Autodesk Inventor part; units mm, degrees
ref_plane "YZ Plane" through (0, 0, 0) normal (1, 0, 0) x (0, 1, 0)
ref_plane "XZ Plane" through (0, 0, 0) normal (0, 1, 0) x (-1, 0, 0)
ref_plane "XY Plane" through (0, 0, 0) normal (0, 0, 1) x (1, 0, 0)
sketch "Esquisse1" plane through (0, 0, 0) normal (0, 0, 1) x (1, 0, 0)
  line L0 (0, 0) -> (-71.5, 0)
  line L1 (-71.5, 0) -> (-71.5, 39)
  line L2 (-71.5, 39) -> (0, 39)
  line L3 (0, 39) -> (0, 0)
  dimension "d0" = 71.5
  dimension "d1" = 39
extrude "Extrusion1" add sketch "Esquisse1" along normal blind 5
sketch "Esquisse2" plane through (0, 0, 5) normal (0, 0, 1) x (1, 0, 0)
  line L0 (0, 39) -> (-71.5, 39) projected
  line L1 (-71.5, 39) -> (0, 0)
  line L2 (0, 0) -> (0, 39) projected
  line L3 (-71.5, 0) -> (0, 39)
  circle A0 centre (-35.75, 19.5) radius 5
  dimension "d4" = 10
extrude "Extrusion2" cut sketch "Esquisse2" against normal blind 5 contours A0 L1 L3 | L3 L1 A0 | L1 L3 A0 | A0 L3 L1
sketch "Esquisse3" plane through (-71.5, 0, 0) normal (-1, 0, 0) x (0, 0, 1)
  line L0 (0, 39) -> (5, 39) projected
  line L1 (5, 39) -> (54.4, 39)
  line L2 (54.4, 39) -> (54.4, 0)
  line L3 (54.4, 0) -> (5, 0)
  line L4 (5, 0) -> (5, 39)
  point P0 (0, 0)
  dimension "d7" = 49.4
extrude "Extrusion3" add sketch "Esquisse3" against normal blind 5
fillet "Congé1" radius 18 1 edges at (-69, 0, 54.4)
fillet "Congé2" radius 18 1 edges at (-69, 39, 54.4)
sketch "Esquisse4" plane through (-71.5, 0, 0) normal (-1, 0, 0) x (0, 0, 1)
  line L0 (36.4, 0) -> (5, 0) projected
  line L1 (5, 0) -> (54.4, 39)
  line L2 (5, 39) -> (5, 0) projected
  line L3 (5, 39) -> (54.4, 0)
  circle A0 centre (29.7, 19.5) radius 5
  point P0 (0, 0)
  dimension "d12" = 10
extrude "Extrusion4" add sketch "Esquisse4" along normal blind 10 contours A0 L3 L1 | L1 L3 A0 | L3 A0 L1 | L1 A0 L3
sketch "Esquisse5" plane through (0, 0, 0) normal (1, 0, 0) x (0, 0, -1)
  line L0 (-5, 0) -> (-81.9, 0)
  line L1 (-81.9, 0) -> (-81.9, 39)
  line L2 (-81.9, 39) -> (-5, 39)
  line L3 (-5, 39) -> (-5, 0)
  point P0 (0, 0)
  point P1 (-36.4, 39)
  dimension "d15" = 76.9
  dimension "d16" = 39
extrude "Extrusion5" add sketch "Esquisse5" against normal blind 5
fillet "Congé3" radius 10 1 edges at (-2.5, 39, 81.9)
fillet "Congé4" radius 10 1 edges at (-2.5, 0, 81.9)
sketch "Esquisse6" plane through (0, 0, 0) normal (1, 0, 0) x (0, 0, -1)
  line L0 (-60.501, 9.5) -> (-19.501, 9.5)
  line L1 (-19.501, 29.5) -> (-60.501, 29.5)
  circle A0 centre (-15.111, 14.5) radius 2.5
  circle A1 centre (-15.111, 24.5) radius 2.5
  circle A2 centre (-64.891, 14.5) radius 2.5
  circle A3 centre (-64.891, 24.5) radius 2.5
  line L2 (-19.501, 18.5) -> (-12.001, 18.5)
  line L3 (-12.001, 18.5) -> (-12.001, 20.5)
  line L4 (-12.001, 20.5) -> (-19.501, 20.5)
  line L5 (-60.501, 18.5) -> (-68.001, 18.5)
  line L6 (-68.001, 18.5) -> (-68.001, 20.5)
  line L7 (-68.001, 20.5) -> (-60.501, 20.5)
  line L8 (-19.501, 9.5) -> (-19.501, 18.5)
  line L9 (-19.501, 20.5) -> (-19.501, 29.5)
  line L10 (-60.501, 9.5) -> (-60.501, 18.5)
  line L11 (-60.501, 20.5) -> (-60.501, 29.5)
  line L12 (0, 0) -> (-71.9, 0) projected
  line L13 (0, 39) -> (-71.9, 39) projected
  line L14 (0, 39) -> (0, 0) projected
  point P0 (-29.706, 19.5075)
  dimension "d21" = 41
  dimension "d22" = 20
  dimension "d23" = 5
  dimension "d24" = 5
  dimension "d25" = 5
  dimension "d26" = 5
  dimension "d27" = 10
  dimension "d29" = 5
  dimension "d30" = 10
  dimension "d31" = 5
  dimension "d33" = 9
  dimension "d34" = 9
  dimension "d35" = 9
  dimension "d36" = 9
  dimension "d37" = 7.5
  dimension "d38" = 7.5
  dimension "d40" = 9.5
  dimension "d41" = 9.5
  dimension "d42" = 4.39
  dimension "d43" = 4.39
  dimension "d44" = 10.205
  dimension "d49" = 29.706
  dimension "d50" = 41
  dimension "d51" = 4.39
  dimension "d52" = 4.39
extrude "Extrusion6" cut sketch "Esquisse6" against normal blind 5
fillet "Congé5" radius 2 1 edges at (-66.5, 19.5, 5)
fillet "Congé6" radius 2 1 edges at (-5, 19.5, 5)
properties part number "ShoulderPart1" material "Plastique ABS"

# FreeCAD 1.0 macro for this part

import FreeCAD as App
import Part
import Sketcher
from FreeCAD import Vector


def edges_at(feature, points):
    """Names of the edges that pass closest to the given points."""
    edges = feature.Shape.Edges
    near = lambda p: min(range(len(edges)), key=lambda i: edges[i].distToShape(Part.Vertex(*p))[0])
    return sorted({f"Edge{near(p) + 1}" for p in points})

doc = App.newDocument("Part")
body = doc.addObject("PartDesign::Body", "Body")

# Sketch on XY plane
sketch1 = doc.addObject("Sketcher::SketchObject", "Sketch")
body.addObject(sketch1)
sketch1.AttachmentSupport = (doc.XY_Plane, [""])
sketch1.MapMode = "FlatFace"
sketch1.addGeometry(Part.LineSegment(Vector(-71.5, 0, 0), Vector(0, 0, 0)), False)
sketch1.addGeometry(Part.LineSegment(Vector(0, 0, 0), Vector(0, 39, 0)), False)
sketch1.addGeometry(Part.LineSegment(Vector(0, 39, 0), Vector(-71.5, 39, 0)), False)
sketch1.addGeometry(Part.LineSegment(Vector(-71.5, 39, 0), Vector(-71.5, 0, 0)), False)
sketch1.addConstraint(Sketcher.Constraint("Coincident", 0, 2, 1, 1))
sketch1.addConstraint(Sketcher.Constraint("Coincident", 1, 2, 2, 1))
sketch1.addConstraint(Sketcher.Constraint("Coincident", 2, 2, 3, 1))
sketch1.addConstraint(Sketcher.Constraint("Coincident", 3, 2, 0, 1))
sketch1.addConstraint(Sketcher.Constraint("Horizontal", 0))
sketch1.addConstraint(Sketcher.Constraint("Vertical", 1))
sketch1.addConstraint(Sketcher.Constraint("Horizontal", 2))
sketch1.addConstraint(Sketcher.Constraint("Vertical", 3))
sketch1.addConstraint(Sketcher.Constraint("Coincident", 0, 2, -1, 1))
sketch1.addConstraint(Sketcher.Constraint("DistanceY", 1, 1, 1, 2, 39.0))
sketch1.addConstraint(Sketcher.Constraint("DistanceX", 0, 1, 0, 2, 71.5))
pad1 = doc.addObject("PartDesign::Pad", "Pad")
body.addObject(pad1)
pad1.Profile = sketch1
pad1.Length = 5

# Sketch on XY plane
sketch2 = doc.addObject("Sketcher::SketchObject", "Sketch001")
body.addObject(sketch2)
sketch2.AttachmentSupport = (doc.XY_Plane, [""])
sketch2.MapMode = "FlatFace"
sketch2.AttachmentOffset = App.Placement(Vector(0, 0, 5), App.Rotation())
sketch2.addGeometry(Part.Circle(Vector(-35.75, 19.5, 0), Vector(0, 0, 1), 5), False)
sketch2.addConstraint(Sketcher.Constraint("Diameter", 0, 10.0))
sketch2.addConstraint(Sketcher.Constraint("DistanceY", -1, 1, 0, 3, 19.5))
sketch2.addConstraint(Sketcher.Constraint("DistanceX", 0, 3, -1, 1, 35.75))
pocket1 = doc.addObject("PartDesign::Pocket", "Pocket")
body.addObject(pocket1)
pocket1.Profile = sketch2
pocket1.Length = 5

# Sketch on YZ plane
sketch3 = doc.addObject("Sketcher::SketchObject", "Sketch002")
body.addObject(sketch3)
sketch3.AttachmentSupport = (doc.YZ_Plane, [""])
sketch3.MapMode = "FlatFace"
sketch3.AttachmentOffset = App.Placement(Vector(0, 0, -71.5), App.Rotation())
sketch3.addGeometry(Part.LineSegment(Vector(39, 54.4, 0), Vector(39, 5, 0)), False)
sketch3.addGeometry(Part.LineSegment(Vector(39, 5, 0), Vector(0, 5, 0)), False)
sketch3.addGeometry(Part.LineSegment(Vector(0, 5, 0), Vector(0, 54.4, 0)), False)
sketch3.addGeometry(Part.LineSegment(Vector(0, 54.4, 0), Vector(39, 54.4, 0)), False)
sketch3.addConstraint(Sketcher.Constraint("Coincident", 0, 2, 1, 1))
sketch3.addConstraint(Sketcher.Constraint("Coincident", 1, 2, 2, 1))
sketch3.addConstraint(Sketcher.Constraint("Coincident", 2, 2, 3, 1))
sketch3.addConstraint(Sketcher.Constraint("Coincident", 3, 2, 0, 1))
sketch3.addConstraint(Sketcher.Constraint("Vertical", 0))
sketch3.addConstraint(Sketcher.Constraint("Horizontal", 1))
sketch3.addConstraint(Sketcher.Constraint("Vertical", 2))
sketch3.addConstraint(Sketcher.Constraint("Horizontal", 3))
sketch3.addConstraint(Sketcher.Constraint("PointOnObject", 1, 2, -2))
sketch3.addConstraint(Sketcher.Constraint("DistanceY", 0, 2, 0, 1, 49.4))
sketch3.addConstraint(Sketcher.Constraint("DistanceX", 1, 2, 1, 1, 39.0))
sketch3.addConstraint(Sketcher.Constraint("DistanceY", -1, 1, 0, 2, 5.0))
pad2 = doc.addObject("PartDesign::Pad", "Pad001")
body.addObject(pad2)
pad2.Profile = sketch3
pad2.Length = 5
doc.recompute()

fillet = doc.addObject("PartDesign::Fillet", "Fillet")
body.addObject(fillet)
fillet.Base = (pad2, edges_at(pad2, [(-69, 0, 54.4)]))
fillet.Radius = 18
doc.recompute()

fillet2 = doc.addObject("PartDesign::Fillet", "Fillet001")
body.addObject(fillet2)
fillet2.Base = (fillet, edges_at(fillet, [(-69, 39, 54.4)]))
fillet2.Radius = 18

# Sketch on YZ plane
sketch4 = doc.addObject("Sketcher::SketchObject", "Sketch003")
body.addObject(sketch4)
sketch4.AttachmentSupport = (doc.YZ_Plane, [""])
sketch4.MapMode = "FlatFace"
sketch4.AttachmentOffset = App.Placement(Vector(0, 0, -71.5), App.Rotation())
sketch4.addGeometry(Part.Circle(Vector(19.5, 29.7, 0), Vector(0, 0, 1), 5), False)
sketch4.addConstraint(Sketcher.Constraint("Diameter", 0, 10.0))
sketch4.addConstraint(Sketcher.Constraint("DistanceX", -1, 1, 0, 3, 19.5))
sketch4.addConstraint(Sketcher.Constraint("DistanceY", -1, 1, 0, 3, 29.7))
pad3 = doc.addObject("PartDesign::Pad", "Pad002")
body.addObject(pad3)
pad3.Profile = sketch4
pad3.Length = 10
pad3.Reversed = True

# Sketch on YZ plane
sketch5 = doc.addObject("Sketcher::SketchObject", "Sketch004")
body.addObject(sketch5)
sketch5.AttachmentSupport = (doc.YZ_Plane, [""])
sketch5.MapMode = "FlatFace"
sketch5.addGeometry(Part.LineSegment(Vector(0, 81.9, 0), Vector(0, 5, 0)), False)
sketch5.addGeometry(Part.LineSegment(Vector(0, 5, 0), Vector(39, 5, 0)), False)
sketch5.addGeometry(Part.LineSegment(Vector(39, 5, 0), Vector(39, 81.9, 0)), False)
sketch5.addGeometry(Part.LineSegment(Vector(39, 81.9, 0), Vector(0, 81.9, 0)), False)
sketch5.addConstraint(Sketcher.Constraint("Coincident", 0, 2, 1, 1))
sketch5.addConstraint(Sketcher.Constraint("Coincident", 1, 2, 2, 1))
sketch5.addConstraint(Sketcher.Constraint("Coincident", 2, 2, 3, 1))
sketch5.addConstraint(Sketcher.Constraint("Coincident", 3, 2, 0, 1))
sketch5.addConstraint(Sketcher.Constraint("Vertical", 0))
sketch5.addConstraint(Sketcher.Constraint("Horizontal", 1))
sketch5.addConstraint(Sketcher.Constraint("Vertical", 2))
sketch5.addConstraint(Sketcher.Constraint("Horizontal", 3))
sketch5.addConstraint(Sketcher.Constraint("PointOnObject", 0, 2, -2))
sketch5.addConstraint(Sketcher.Constraint("DistanceX", 1, 1, 1, 2, 39.0))
sketch5.addConstraint(Sketcher.Constraint("DistanceY", 0, 2, 0, 1, 76.9))
sketch5.addConstraint(Sketcher.Constraint("DistanceY", -1, 1, 0, 2, 5.0))
pad4 = doc.addObject("PartDesign::Pad", "Pad003")
body.addObject(pad4)
pad4.Profile = sketch5
pad4.Length = 5
pad4.Reversed = True
doc.recompute()

fillet3 = doc.addObject("PartDesign::Fillet", "Fillet002")
body.addObject(fillet3)
fillet3.Base = (pad4, edges_at(pad4, [(-2.5, 39, 81.9)]))
fillet3.Radius = 10
doc.recompute()

fillet4 = doc.addObject("PartDesign::Fillet", "Fillet003")
body.addObject(fillet4)
fillet4.Base = (fillet3, edges_at(fillet3, [(-2.5, 0, 81.9)]))
fillet4.Radius = 10

# Sketch on YZ plane
sketch6 = doc.addObject("Sketcher::SketchObject", "Sketch005")
body.addObject(sketch6)
sketch6.AttachmentSupport = (doc.YZ_Plane, [""])
sketch6.MapMode = "FlatFace"
sketch6.addGeometry(Part.LineSegment(Vector(18.5, 60.501, 0), Vector(9.5, 60.501, 0)), False)
sketch6.addGeometry(Part.LineSegment(Vector(9.5, 60.501, 0), Vector(9.5, 19.501, 0)), False)
sketch6.addGeometry(Part.LineSegment(Vector(9.5, 19.501, 0), Vector(18.5, 19.501, 0)), False)
sketch6.addGeometry(Part.LineSegment(Vector(18.5, 19.501, 0), Vector(18.5, 12.001, 0)), False)
sketch6.addGeometry(Part.LineSegment(Vector(18.5, 12.001, 0), Vector(20.5, 12.001, 0)), False)
sketch6.addGeometry(Part.LineSegment(Vector(20.5, 12.001, 0), Vector(20.5, 19.501, 0)), False)
sketch6.addGeometry(Part.LineSegment(Vector(20.5, 19.501, 0), Vector(29.5, 19.501, 0)), False)
sketch6.addGeometry(Part.LineSegment(Vector(29.5, 19.501, 0), Vector(29.5, 60.501, 0)), False)
sketch6.addGeometry(Part.LineSegment(Vector(29.5, 60.501, 0), Vector(20.5, 60.501, 0)), False)
sketch6.addGeometry(Part.LineSegment(Vector(20.5, 60.501, 0), Vector(20.5, 68.001, 0)), False)
sketch6.addGeometry(Part.LineSegment(Vector(20.5, 68.001, 0), Vector(18.5, 68.001, 0)), False)
sketch6.addGeometry(Part.LineSegment(Vector(18.5, 68.001, 0), Vector(18.5, 60.501, 0)), False)
sketch6.addGeometry(Part.Circle(Vector(14.5, 15.111, 0), Vector(0, 0, 1), 2.5), False)
sketch6.addGeometry(Part.Circle(Vector(24.5, 15.111, 0), Vector(0, 0, 1), 2.5), False)
sketch6.addGeometry(Part.Circle(Vector(14.5, 64.891, 0), Vector(0, 0, 1), 2.5), False)
sketch6.addGeometry(Part.Circle(Vector(24.5, 64.891, 0), Vector(0, 0, 1), 2.5), False)
sketch6.addConstraint(Sketcher.Constraint("Coincident", 0, 2, 1, 1))
sketch6.addConstraint(Sketcher.Constraint("Coincident", 1, 2, 2, 1))
sketch6.addConstraint(Sketcher.Constraint("Coincident", 2, 2, 3, 1))
sketch6.addConstraint(Sketcher.Constraint("Coincident", 3, 2, 4, 1))
sketch6.addConstraint(Sketcher.Constraint("Coincident", 4, 2, 5, 1))
sketch6.addConstraint(Sketcher.Constraint("Coincident", 5, 2, 6, 1))
sketch6.addConstraint(Sketcher.Constraint("Coincident", 6, 2, 7, 1))
sketch6.addConstraint(Sketcher.Constraint("Coincident", 7, 2, 8, 1))
sketch6.addConstraint(Sketcher.Constraint("Coincident", 8, 2, 9, 1))
sketch6.addConstraint(Sketcher.Constraint("Coincident", 9, 2, 10, 1))
sketch6.addConstraint(Sketcher.Constraint("Coincident", 10, 2, 11, 1))
sketch6.addConstraint(Sketcher.Constraint("Coincident", 11, 2, 0, 1))
sketch6.addConstraint(Sketcher.Constraint("Horizontal", 0))
sketch6.addConstraint(Sketcher.Constraint("Vertical", 1))
sketch6.addConstraint(Sketcher.Constraint("Horizontal", 2))
sketch6.addConstraint(Sketcher.Constraint("Vertical", 3))
sketch6.addConstraint(Sketcher.Constraint("Horizontal", 4))
sketch6.addConstraint(Sketcher.Constraint("Vertical", 5))
sketch6.addConstraint(Sketcher.Constraint("Horizontal", 6))
sketch6.addConstraint(Sketcher.Constraint("Vertical", 7))
sketch6.addConstraint(Sketcher.Constraint("Horizontal", 8))
sketch6.addConstraint(Sketcher.Constraint("Vertical", 9))
sketch6.addConstraint(Sketcher.Constraint("Horizontal", 10))
sketch6.addConstraint(Sketcher.Constraint("Vertical", 11))
sketch6.addConstraint(Sketcher.Constraint("Equal", 12, 13))
sketch6.addConstraint(Sketcher.Constraint("Equal", 13, 14))
sketch6.addConstraint(Sketcher.Constraint("Equal", 14, 15))
sketch6.addConstraint(Sketcher.Constraint("Horizontal", 12, 3, 13, 3))
sketch6.addConstraint(Sketcher.Constraint("Horizontal", 14, 3, 15, 3))
sketch6.addConstraint(Sketcher.Constraint("Horizontal", 2, 2, 5, 2))
sketch6.addConstraint(Sketcher.Constraint("Horizontal", 0, 2, 7, 2))
sketch6.addConstraint(Sketcher.Constraint("Vertical", 12, 3, 14, 3))
sketch6.addConstraint(Sketcher.Constraint("Vertical", 13, 3, 15, 3))
sketch6.addConstraint(Sketcher.Constraint("Vertical", 5, 2, 8, 2))
sketch6.addConstraint(Sketcher.Constraint("Vertical", 3, 2, 10, 2))
sketch6.addConstraint(Sketcher.Constraint("Equal", 2, 6))
sketch6.addConstraint(Sketcher.Constraint("Equal", 5, 9))
sketch6.addConstraint(Sketcher.Constraint("Diameter", 12, 5.0))
sketch6.addConstraint(Sketcher.Constraint("DistanceX", 0, 2, 0, 1, 9.0))
sketch6.addConstraint(Sketcher.Constraint("DistanceY", 1, 2, 1, 1, 41.0))
sketch6.addConstraint(Sketcher.Constraint("DistanceY", 3, 2, 3, 1, 7.5))
sketch6.addConstraint(Sketcher.Constraint("DistanceX", 12, 3, 13, 3, 10.0))
sketch6.addConstraint(Sketcher.Constraint("DistanceX", 0, 2, 14, 3, 5.0))
sketch6.addConstraint(Sketcher.Constraint("DistanceX", 13, 3, 6, 2, 5.0))
sketch6.addConstraint(Sketcher.Constraint("DistanceX", -1, 1, 0, 2, 9.5))
sketch6.addConstraint(Sketcher.Constraint("DistanceY", 0, 2, 14, 3, 4.39))
sketch6.addConstraint(Sketcher.Constraint("DistanceY", 12, 3, 1, 2, 4.39))
sketch6.addConstraint(Sketcher.Constraint("DistanceY", -1, 1, 12, 3, 15.111))
pocket2 = doc.addObject("PartDesign::Pocket", "Pocket001")
body.addObject(pocket2)
pocket2.Profile = sketch6
pocket2.Length = 5
doc.recompute()

fillet5 = doc.addObject("PartDesign::Fillet", "Fillet004")
body.addObject(fillet5)
fillet5.Base = (pocket2, edges_at(pocket2, [(-66.5, 19.5, 5)]))
fillet5.Radius = 2
doc.recompute()

fillet6 = doc.addObject("PartDesign::Fillet", "Fillet005")
body.addObject(fillet6)
fillet6.Base = (fillet5, edges_at(fillet5, [(-5, 19.5, 5)]))
fillet6.Radius = 2

doc.recompute()
